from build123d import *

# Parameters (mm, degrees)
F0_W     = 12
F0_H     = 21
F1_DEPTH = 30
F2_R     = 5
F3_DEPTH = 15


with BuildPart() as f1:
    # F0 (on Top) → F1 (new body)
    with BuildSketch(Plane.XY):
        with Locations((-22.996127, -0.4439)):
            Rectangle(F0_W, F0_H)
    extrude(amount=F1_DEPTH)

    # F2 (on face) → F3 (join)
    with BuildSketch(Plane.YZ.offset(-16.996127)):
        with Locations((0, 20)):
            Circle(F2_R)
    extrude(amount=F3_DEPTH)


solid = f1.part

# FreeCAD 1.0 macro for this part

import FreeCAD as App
import Part
import Sketcher
Q = App.Units.Quantity

doc = App.newDocument("Part")
body = doc.addObject("PartDesign::Body", "Body")

# Sketch on XY plane
sketch1 = body.newObject("Sketcher::SketchObject", "Sketch")
sketch1.AttachmentSupport = (doc.getObject("XY_Plane"), [""])
sketch1.MapMode = "FlatFace"
sketch1.addGeometry(Part.LineSegment(App.Vector(-29, 10, 0), App.Vector(-29, -11, 0)), False)
sketch1.addGeometry(Part.LineSegment(App.Vector(-29, -11, 0), App.Vector(-17, -11, 0)), False)
sketch1.addGeometry(Part.LineSegment(App.Vector(-17, -11, 0), App.Vector(-17, 10, 0)), False)
sketch1.addGeometry(Part.LineSegment(App.Vector(-17, 10, 0), App.Vector(-29, 10, 0)), False)
sketch1.addConstraint(Sketcher.Constraint("Coincident", 0, 2, 1, 1))
sketch1.addConstraint(Sketcher.Constraint("Coincident", 1, 2, 2, 1))
sketch1.addConstraint(Sketcher.Constraint("Coincident", 2, 2, 3, 1))
sketch1.addConstraint(Sketcher.Constraint("Coincident", 3, 2, 0, 1))
sketch1.addConstraint(Sketcher.Constraint("Vertical", 0))
sketch1.addConstraint(Sketcher.Constraint("Horizontal", 1))
sketch1.addConstraint(Sketcher.Constraint("Vertical", 2))
sketch1.addConstraint(Sketcher.Constraint("Horizontal", 3))
sketch1.addConstraint(Sketcher.Constraint("DistanceX", 1, 1, 1, 2, Q("12 mm")))
sketch1.addConstraint(Sketcher.Constraint("DistanceY", 0, 2, 0, 1, Q("21 mm")))
sketch1.addConstraint(Sketcher.Constraint("DistanceY", 0, 2, -1, 1, Q("10.9439 mm")))
sketch1.addConstraint(Sketcher.Constraint("DistanceX", 0, 2, -1, 1, Q("28.996127 mm")))
pad1 = body.newObject("PartDesign::Pad", "Pad")
pad1.Profile = sketch1
pad1.Length = 30

# Sketch on YZ plane
sketch2 = body.newObject("Sketcher::SketchObject", "Sketch001")
sketch2.AttachmentSupport = (doc.getObject("YZ_Plane"), [""])
sketch2.MapMode = "FlatFace"
sketch2.AttachmentOffset = App.Placement(App.Vector(0, 0, -16.996127), App.Rotation())
sketch2.addGeometry(Part.Circle(App.Vector(0, 20, 0), App.Vector(0, 0, 1), 5), False)
sketch2.addConstraint(Sketcher.Constraint("PointOnObject", 0, 3, -2))
sketch2.addConstraint(Sketcher.Constraint("Diameter", 0, Q("10 mm")))
sketch2.addConstraint(Sketcher.Constraint("DistanceY", -1, 1, 0, 3, Q("20 mm")))
pad2 = body.newObject("PartDesign::Pad", "Pad001")
pad2.Profile = sketch2
pad2.Length = 15

doc.recompute()
